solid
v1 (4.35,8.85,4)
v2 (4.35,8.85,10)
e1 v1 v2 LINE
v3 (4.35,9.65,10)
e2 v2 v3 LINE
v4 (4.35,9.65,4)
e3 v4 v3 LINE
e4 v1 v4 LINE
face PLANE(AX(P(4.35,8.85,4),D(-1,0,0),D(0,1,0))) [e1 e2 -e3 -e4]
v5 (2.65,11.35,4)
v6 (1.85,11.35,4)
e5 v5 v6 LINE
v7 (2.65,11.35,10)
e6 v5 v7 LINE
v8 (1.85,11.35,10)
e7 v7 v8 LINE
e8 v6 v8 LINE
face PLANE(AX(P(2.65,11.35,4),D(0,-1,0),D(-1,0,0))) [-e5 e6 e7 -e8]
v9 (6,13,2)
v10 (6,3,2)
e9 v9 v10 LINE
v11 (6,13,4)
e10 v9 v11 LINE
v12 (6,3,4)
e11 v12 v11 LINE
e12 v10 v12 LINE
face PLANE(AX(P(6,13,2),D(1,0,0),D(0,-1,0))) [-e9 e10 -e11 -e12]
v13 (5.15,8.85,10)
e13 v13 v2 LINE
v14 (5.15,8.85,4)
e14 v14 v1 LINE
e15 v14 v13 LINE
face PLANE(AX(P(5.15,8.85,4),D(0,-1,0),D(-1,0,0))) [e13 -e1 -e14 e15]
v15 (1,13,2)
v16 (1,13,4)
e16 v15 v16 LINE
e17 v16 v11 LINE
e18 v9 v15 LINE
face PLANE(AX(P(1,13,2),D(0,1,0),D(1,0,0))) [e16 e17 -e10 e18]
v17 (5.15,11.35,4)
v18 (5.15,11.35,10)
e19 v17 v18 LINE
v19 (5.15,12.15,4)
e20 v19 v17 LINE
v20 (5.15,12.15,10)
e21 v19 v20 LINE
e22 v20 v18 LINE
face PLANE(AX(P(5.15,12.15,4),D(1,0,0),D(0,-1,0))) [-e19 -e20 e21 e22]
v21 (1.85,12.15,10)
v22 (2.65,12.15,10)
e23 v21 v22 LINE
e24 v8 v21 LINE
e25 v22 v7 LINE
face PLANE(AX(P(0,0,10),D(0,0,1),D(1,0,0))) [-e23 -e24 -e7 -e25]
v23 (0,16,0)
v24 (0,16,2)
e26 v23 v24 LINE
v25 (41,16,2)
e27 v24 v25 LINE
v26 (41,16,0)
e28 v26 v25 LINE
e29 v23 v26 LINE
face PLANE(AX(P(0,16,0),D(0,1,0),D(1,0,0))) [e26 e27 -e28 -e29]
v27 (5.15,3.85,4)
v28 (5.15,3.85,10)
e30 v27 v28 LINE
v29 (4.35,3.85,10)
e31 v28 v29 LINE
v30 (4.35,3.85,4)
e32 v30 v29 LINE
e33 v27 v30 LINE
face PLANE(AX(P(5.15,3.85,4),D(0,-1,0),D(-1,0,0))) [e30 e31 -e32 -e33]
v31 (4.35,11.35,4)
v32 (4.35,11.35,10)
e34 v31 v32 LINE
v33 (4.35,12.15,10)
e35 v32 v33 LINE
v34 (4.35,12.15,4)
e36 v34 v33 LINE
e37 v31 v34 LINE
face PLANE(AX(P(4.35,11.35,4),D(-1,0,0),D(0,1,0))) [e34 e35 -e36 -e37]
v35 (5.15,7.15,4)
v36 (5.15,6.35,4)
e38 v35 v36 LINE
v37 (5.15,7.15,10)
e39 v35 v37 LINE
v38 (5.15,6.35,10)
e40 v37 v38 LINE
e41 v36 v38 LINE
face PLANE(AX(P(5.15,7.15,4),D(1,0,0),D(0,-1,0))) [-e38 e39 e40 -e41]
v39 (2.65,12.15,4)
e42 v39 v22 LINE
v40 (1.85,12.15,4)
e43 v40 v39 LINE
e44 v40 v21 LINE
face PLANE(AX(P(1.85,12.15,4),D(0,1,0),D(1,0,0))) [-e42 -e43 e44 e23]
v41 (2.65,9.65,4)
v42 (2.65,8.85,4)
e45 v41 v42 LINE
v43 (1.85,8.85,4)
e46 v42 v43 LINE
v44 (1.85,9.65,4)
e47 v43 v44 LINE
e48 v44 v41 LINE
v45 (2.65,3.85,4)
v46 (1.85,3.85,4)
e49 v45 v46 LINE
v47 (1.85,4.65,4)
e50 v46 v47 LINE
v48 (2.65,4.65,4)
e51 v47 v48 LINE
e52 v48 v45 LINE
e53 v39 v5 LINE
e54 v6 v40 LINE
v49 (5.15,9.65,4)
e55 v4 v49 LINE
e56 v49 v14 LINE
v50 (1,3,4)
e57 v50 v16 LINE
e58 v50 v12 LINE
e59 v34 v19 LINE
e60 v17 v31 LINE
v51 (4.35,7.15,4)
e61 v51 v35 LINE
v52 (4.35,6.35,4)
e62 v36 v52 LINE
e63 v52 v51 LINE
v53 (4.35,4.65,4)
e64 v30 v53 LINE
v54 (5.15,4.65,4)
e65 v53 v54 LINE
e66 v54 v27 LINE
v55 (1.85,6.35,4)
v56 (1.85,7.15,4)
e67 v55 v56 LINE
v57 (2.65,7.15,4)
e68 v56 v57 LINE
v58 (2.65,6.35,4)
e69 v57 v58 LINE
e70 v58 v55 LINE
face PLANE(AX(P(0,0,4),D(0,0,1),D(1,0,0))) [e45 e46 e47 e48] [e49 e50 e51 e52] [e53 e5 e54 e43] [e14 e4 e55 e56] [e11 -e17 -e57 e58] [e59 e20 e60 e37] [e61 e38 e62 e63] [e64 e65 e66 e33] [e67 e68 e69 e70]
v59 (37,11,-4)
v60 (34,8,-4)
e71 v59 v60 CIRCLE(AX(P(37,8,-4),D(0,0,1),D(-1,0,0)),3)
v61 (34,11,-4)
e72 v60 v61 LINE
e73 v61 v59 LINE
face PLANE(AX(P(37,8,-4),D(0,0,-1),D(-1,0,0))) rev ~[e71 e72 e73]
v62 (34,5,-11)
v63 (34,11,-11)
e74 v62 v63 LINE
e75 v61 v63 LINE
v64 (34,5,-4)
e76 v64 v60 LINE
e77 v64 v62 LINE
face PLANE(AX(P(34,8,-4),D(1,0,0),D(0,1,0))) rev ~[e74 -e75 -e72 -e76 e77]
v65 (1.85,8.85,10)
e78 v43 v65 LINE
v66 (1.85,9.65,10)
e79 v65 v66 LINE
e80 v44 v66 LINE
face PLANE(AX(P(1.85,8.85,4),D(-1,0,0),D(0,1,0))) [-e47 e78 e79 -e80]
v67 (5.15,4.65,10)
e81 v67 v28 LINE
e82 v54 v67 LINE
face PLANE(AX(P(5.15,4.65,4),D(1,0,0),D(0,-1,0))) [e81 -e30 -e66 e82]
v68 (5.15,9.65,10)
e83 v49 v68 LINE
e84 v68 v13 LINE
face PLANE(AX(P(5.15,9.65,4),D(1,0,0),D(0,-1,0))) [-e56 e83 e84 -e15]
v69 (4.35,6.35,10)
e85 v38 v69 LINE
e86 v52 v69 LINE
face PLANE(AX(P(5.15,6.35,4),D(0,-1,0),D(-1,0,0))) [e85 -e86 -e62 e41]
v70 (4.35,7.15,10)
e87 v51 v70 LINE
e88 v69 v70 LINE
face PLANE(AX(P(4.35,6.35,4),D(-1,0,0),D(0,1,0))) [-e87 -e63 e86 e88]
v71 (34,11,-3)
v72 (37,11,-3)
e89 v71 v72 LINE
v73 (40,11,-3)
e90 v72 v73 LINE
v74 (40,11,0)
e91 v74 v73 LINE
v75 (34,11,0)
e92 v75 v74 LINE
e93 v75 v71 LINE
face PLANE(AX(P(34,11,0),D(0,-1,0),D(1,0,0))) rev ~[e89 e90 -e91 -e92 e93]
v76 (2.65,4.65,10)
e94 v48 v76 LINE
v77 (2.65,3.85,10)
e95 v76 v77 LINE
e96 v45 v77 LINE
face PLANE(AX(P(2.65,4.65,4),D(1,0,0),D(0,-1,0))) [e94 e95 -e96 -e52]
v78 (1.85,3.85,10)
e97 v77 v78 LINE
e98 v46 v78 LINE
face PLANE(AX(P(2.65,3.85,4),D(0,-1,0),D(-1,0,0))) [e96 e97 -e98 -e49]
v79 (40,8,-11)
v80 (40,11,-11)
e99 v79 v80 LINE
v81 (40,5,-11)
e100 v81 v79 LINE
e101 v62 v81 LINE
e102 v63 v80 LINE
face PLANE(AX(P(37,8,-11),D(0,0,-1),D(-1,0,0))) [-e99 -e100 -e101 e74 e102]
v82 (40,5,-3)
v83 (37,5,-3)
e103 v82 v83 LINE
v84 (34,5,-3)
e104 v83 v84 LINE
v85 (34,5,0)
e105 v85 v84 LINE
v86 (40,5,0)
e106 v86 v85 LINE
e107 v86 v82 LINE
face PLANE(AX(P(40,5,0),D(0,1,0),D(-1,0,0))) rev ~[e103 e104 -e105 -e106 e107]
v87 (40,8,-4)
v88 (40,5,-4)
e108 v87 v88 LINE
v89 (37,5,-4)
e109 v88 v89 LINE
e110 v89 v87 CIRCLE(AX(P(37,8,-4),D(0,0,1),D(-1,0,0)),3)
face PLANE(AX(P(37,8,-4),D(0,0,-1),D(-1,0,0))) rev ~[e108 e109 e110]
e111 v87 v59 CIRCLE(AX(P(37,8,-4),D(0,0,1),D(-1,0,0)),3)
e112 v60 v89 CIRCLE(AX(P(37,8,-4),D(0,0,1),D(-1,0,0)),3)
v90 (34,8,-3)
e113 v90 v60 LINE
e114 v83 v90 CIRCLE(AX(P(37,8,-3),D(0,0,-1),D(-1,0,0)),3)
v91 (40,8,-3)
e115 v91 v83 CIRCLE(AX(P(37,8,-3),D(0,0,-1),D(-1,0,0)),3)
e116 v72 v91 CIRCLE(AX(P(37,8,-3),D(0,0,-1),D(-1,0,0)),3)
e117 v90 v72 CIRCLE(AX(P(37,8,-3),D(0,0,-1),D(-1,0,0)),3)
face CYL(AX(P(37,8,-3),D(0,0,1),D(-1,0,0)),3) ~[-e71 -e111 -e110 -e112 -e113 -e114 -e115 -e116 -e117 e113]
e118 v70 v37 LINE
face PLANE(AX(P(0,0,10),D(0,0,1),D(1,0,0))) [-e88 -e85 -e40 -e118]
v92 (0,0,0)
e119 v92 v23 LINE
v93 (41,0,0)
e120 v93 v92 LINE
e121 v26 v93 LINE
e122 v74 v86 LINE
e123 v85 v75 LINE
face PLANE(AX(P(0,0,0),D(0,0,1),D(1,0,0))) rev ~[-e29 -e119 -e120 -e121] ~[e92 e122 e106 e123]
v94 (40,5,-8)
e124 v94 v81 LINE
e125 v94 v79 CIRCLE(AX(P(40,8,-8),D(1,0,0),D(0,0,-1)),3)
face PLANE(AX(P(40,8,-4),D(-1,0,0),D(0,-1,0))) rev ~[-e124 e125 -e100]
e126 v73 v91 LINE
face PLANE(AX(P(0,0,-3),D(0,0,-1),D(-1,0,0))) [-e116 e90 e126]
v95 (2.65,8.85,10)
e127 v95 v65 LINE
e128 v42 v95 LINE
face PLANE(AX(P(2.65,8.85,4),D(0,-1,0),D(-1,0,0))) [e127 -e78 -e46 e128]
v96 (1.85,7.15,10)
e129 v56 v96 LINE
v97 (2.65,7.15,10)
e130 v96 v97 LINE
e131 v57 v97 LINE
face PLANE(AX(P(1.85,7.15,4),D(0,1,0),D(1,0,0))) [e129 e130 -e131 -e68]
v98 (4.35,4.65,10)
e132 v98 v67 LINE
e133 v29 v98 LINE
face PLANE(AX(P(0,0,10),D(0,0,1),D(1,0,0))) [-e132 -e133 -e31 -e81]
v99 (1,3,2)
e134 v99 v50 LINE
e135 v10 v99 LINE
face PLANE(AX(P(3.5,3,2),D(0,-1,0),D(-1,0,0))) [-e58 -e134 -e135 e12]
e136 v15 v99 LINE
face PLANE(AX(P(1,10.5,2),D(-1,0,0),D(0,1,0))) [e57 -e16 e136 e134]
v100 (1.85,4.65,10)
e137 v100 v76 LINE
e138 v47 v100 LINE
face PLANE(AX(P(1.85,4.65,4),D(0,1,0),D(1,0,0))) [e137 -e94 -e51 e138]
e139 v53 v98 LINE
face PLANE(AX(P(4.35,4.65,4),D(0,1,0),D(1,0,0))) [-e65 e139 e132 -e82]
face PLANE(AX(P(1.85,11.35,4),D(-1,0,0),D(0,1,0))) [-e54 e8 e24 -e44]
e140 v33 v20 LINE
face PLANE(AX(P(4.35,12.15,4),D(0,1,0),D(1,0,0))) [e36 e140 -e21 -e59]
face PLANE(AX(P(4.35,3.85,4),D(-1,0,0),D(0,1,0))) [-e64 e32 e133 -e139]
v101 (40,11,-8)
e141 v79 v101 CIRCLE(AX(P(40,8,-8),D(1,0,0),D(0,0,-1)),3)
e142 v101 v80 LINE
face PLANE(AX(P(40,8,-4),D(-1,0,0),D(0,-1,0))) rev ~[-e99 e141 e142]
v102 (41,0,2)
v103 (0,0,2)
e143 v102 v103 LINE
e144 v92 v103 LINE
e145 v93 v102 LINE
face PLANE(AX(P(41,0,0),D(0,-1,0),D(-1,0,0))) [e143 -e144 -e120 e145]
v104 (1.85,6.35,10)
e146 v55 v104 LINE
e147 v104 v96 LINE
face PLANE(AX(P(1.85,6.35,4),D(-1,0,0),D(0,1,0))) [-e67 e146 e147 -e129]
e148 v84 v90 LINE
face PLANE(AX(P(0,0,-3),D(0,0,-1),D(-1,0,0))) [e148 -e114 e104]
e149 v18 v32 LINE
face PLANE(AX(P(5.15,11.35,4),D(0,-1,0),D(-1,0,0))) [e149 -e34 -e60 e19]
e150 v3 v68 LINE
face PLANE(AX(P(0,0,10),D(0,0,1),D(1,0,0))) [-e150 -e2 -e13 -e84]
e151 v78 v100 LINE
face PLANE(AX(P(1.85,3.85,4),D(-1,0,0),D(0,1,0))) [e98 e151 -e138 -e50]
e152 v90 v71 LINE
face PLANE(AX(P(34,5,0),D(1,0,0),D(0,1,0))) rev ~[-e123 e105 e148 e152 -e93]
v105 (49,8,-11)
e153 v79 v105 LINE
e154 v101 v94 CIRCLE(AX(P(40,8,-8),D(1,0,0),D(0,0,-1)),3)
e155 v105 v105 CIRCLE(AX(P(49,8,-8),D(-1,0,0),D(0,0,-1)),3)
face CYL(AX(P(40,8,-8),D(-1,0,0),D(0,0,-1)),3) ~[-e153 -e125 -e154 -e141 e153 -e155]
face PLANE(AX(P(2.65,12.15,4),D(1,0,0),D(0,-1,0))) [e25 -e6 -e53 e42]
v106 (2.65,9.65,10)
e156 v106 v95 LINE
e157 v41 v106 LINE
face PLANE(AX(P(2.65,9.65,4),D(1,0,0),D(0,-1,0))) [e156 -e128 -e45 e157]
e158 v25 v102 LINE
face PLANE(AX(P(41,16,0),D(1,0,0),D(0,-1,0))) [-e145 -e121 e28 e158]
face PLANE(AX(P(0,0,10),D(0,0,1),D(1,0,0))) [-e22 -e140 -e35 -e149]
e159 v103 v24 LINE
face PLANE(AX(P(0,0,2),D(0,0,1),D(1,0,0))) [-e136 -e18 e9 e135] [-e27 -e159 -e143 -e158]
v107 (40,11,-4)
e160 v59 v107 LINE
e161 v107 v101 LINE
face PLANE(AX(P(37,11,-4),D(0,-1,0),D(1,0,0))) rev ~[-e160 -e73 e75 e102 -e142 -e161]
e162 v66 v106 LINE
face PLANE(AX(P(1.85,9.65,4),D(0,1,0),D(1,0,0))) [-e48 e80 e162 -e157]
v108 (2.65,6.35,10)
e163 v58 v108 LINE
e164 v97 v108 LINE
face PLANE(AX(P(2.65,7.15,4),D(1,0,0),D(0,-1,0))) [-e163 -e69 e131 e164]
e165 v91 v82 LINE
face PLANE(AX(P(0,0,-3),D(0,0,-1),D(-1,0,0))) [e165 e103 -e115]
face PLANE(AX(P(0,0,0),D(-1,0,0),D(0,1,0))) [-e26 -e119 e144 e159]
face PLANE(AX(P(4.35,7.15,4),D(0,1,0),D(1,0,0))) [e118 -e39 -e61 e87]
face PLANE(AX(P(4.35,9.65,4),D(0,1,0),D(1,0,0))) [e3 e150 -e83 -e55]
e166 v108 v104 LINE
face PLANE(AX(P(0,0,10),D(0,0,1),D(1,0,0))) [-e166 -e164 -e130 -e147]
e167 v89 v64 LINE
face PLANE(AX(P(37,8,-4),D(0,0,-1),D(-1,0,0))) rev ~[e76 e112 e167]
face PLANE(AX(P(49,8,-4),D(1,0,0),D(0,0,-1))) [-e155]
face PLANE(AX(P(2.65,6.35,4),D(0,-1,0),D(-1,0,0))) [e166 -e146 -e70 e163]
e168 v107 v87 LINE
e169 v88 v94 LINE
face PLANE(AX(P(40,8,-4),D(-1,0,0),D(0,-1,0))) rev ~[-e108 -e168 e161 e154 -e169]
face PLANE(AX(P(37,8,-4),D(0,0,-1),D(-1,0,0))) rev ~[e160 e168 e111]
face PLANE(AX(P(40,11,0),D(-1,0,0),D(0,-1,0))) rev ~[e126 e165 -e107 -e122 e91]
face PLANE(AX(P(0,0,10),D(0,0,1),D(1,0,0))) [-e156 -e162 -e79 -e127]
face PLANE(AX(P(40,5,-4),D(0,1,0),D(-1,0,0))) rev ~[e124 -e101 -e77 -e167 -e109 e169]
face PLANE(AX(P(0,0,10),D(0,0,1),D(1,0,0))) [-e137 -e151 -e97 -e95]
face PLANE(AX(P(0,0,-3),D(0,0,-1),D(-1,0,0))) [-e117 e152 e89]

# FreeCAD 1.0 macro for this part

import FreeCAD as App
import Part
import Sketcher
from FreeCAD import Vector
Q = App.Units.Quantity


def add_polygon(sketch, points):
    """Adds a closed chain of lines whose ends are joined by coincident constraints."""
    first, n = sketch.GeometryCount, len(points)
    for a, b in zip(points, points[1:] + points[:1]):
        sketch.addGeometry(Part.LineSegment(App.Vector(*a, 0), App.Vector(*b, 0)), False)
    for i in range(n):
        sketch.addConstraint(Sketcher.Constraint("Coincident", first + i, 2, first + (i + 1) % n, 1))

doc = App.newDocument("Part")
body = doc.addObject("PartDesign::Body", "Body")

# Sketch on XY plane
sketch1 = body.newObject("Sketcher::SketchObject", "Sketch")
sketch1.AttachmentSupport = (doc.getObject("XY_Plane"), [""])
sketch1.MapMode = "FlatFace"
add_polygon(sketch1, [(41, 16), (0, 16), (0, 0), (41, 0)])  # lines 0-3
sketch1.addConstraint(Sketcher.Constraint("Horizontal", 0))
sketch1.addConstraint(Sketcher.Constraint("Vertical", 1))
sketch1.addConstraint(Sketcher.Constraint("Horizontal", 2))
sketch1.addConstraint(Sketcher.Constraint("Vertical", 3))
sketch1.addConstraint(Sketcher.Constraint("Coincident", 1, 2, -1, 1))
sketch1.addConstraint(Sketcher.Constraint("DistanceX", 0, 2, 0, 1, Q("41 mm")))
sketch1.addConstraint(Sketcher.Constraint("DistanceY", 1, 2, 1, 1, Q("16 mm")))
pad1 = body.newObject("PartDesign::Pad", "Pad")
pad1.Profile = sketch1
pad1.Length = 2

# Sketch on XY plane
sketch2 = body.newObject("Sketcher::SketchObject", "Sketch001")
sketch2.AttachmentSupport = (doc.getObject("XY_Plane"), [""])
sketch2.MapMode = "FlatFace"
sketch2.AttachmentOffset = App.Placement(Vector(0, 0, 2), App.Rotation())
add_polygon(sketch2, [(1, 13), (1, 3), (6, 3), (6, 13)])  # lines 0-3
sketch2.addConstraint(Sketcher.Constraint("Vertical", 0))
sketch2.addConstraint(Sketcher.Constraint("Horizontal", 1))
sketch2.addConstraint(Sketcher.Constraint("Vertical", 2))
sketch2.addConstraint(Sketcher.Constraint("Horizontal", 3))
sketch2.addConstraint(Sketcher.Constraint("DistanceY", 0, 2, 0, 1, Q("10 mm")))
sketch2.addConstraint(Sketcher.Constraint("DistanceX", -1, 1, 0, 2, Q("1 mm")))
sketch2.addConstraint(Sketcher.Constraint("DistanceY", -1, 1, 0, 2, Q("3 mm")))
sketch2.addConstraint(Sketcher.Constraint("DistanceX", 1, 1, 1, 2, Q("5 mm")))
pad2 = body.newObject("PartDesign::Pad", "Pad001")
pad2.Profile = sketch2
pad2.Length = 2

# Sketch on XY plane
sketch3 = body.newObject("Sketcher::SketchObject", "Sketch002")
sketch3.AttachmentSupport = (doc.getObject("XY_Plane"), [""])
sketch3.MapMode = "FlatFace"
sketch3.AttachmentOffset = App.Placement(Vector(0, 0, 4), App.Rotation())
add_polygon(sketch3, [(2.6, 12.2), (1.9, 12.2), (1.9, 11.3), (2.6, 11.3)])  # lines 0-3
add_polygon(sketch3, [(2.6, 8.8), (2.6, 9.7), (1.9, 9.7), (1.9, 8.8)])  # lines 4-7
add_polygon(sketch3, [(2.6, 6.3), (2.6, 7.2), (1.9, 7.2), (1.9, 6.3)])  # lines 8-11
add_polygon(sketch3, [(2.6, 3.9), (2.6, 4.7), (1.9, 4.7), (1.9, 3.9)])  # lines 12-15
add_polygon(sketch3, [(5.2, 11.3), (5.2, 12.2), (4.3, 12.2), (4.3, 11.3)])  # lines 16-19
add_polygon(sketch3, [(5.2, 8.8), (5.2, 9.7), (4.3, 9.7), (4.3, 8.8)])  # lines 20-23
add_polygon(sketch3, [(5.2, 6.3), (5.2, 7.2), (4.3, 7.2), (4.3, 6.3)])  # lines 24-27
add_polygon(sketch3, [(5.2, 3.9), (5.2, 4.7), (4.3, 4.7), (4.3, 3.9)])  # lines 28-31
sketch3.addConstraint(Sketcher.Constraint("Horizontal", 0))
sketch3.addConstraint(Sketcher.Constraint("Vertical", 1))
sketch3.addConstraint(Sketcher.Constraint("Horizontal", 2))
sketch3.addConstraint(Sketcher.Constraint("Vertical", 3))
sketch3.addConstraint(Sketcher.Constraint("Vertical", 4))
sketch3.addConstraint(Sketcher.Constraint("Horizontal", 5))
sketch3.addConstraint(Sketcher.Constraint("Vertical", 6))
sketch3.addConstraint(Sketcher.Constraint("Horizontal", 7))
sketch3.addConstraint(Sketcher.Constraint("Vertical", 8))
sketch3.addConstraint(Sketcher.Constraint("Horizontal", 9))
sketch3.addConstraint(Sketcher.Constraint("Vertical", 10))
sketch3.addConstraint(Sketcher.Constraint("Horizontal", 11))
sketch3.addConstraint(Sketcher.Constraint("Vertical", 12))
sketch3.addConstraint(Sketcher.Constraint("Horizontal", 13))
sketch3.addConstraint(Sketcher.Constraint("Vertical", 14))
sketch3.addConstraint(Sketcher.Constraint("Horizontal", 15))
sketch3.addConstraint(Sketcher.Constraint("Vertical", 16))
sketch3.addConstraint(Sketcher.Constraint("Horizontal", 17))
sketch3.addConstraint(Sketcher.Constraint("Vertical", 18))
sketch3.addConstraint(Sketcher.Constraint("Horizontal", 19))
sketch3.addConstraint(Sketcher.Constraint("Vertical", 20))
sketch3.addConstraint(Sketcher.Constraint("Horizontal", 21))
sketch3.addConstraint(Sketcher.Constraint("Vertical", 22))
sketch3.addConstraint(Sketcher.Constraint("Horizontal", 23))
sketch3.addConstraint(Sketcher.Constraint("Vertical", 24))
sketch3.addConstraint(Sketcher.Constraint("Horizontal", 25))
sketch3.addConstraint(Sketcher.Constraint("Vertical", 26))
sketch3.addConstraint(Sketcher.Constraint("Horizontal", 27))
sketch3.addConstraint(Sketcher.Constraint("Vertical", 28))
sketch3.addConstraint(Sketcher.Constraint("Horizontal", 29))
sketch3.addConstraint(Sketcher.Constraint("Vertical", 30))
sketch3.addConstraint(Sketcher.Constraint("Horizontal", 31))
sketch3.addConstraint(Sketcher.Constraint("Horizontal", 3, 2, 16, 2))
sketch3.addConstraint(Sketcher.Constraint("Horizontal", 2, 2, 18, 2))
sketch3.addConstraint(Sketcher.Constraint("Horizontal", 5, 2, 20, 2))
sketch3.addConstraint(Sketcher.Constraint("Horizontal", 7, 2, 22, 2))
sketch3.addConstraint(Sketcher.Constraint("Horizontal", 9, 2, 24, 2))
sketch3.addConstraint(Sketcher.Constraint("Horizontal", 11, 2, 26, 2))
sketch3.addConstraint(Sketcher.Constraint("Horizontal", 13, 2, 28, 2))
sketch3.addConstraint(Sketcher.Constraint("Horizontal", 15, 2, 30, 2))
sketch3.addConstraint(Sketcher.Constraint("Vertical", 3, 2, 4, 2))
sketch3.addConstraint(Sketcher.Constraint("Vertical", 1, 2, 5, 2))
sketch3.addConstraint(Sketcher.Constraint("Vertical", 7, 2, 8, 2))
sketch3.addConstraint(Sketcher.Constraint("Vertical", 6, 2, 9, 2))
sketch3.addConstraint(Sketcher.Constraint("Vertical", 11, 2, 12, 2))
sketch3.addConstraint(Sketcher.Constraint("Vertical", 10, 2, 13, 2))
sketch3.addConstraint(Sketcher.Constraint("Vertical", 19, 2, 20, 2))
sketch3.addConstraint(Sketcher.Constraint("Vertical", 18, 2, 21, 2))
sketch3.addConstraint(Sketcher.Constraint("Vertical", 23, 2, 24, 2))
sketch3.addConstraint(Sketcher.Constraint("Vertical", 22, 2, 25, 2))
sketch3.addConstraint(Sketcher.Constraint("Vertical", 27, 2, 28, 2))
sketch3.addConstraint(Sketcher.Constraint("Vertical", 26, 2, 29, 2))
sketch3.addConstraint(Sketcher.Constraint("Equal", 15, 17))
sketch3.addConstraint(Sketcher.Constraint("Equal", 31, 1))
sketch3.addConstraint(Sketcher.Constraint("Equal", 3, 4))
sketch3.addConstraint(Sketcher.Constraint("Equal", 6, 8))
sketch3.addConstraint(Sketcher.Constraint("Equal", 10, 12))
sketch3.addConstraint(Sketcher.Constraint("DistanceX", 0, 2, 0, 1, Q("0.8 mm")))
sketch3.addConstraint(Sketcher.Constraint("DistanceY", 4, 2, 3, 2, Q("2.5 mm")))
sketch3.addConstraint(Sketcher.Constraint("DistanceY", 8, 2, 4, 2, Q("2.5 mm")))
sketch3.addConstraint(Sketcher.Constraint("DistanceY", 12, 2, 8, 2, Q("2.5 mm")))
sketch3.addConstraint(Sketcher.Constraint("DistanceX", 3, 2, 16, 2, Q("2.5 mm")))
sketch3.addConstraint(Sketcher.Constraint("DistanceX", -1, 1, 0, 2, Q("1.85 mm")))
sketch3.addConstraint(Sketcher.Constraint("DistanceY", -1, 1, 0, 2, Q("12.15 mm")))
pad3 = body.newObject("PartDesign::Pad", "Pad002")
pad3.Profile = sketch3
pad3.Length = 6

# Sketch on XY plane
sketch4 = body.newObject("Sketcher::SketchObject", "Sketch003")
sketch4.AttachmentSupport = (doc.getObject("XY_Plane"), [""])
sketch4.MapMode = "FlatFace"
add_polygon(sketch4, [(40, 11), (40, 5), (34, 5), (34, 11)])  # lines 0-3
sketch4.addConstraint(Sketcher.Constraint("Vertical", 0))
sketch4.addConstraint(Sketcher.Constraint("Horizontal", 1))
sketch4.addConstraint(Sketcher.Constraint("Vertical", 2))
sketch4.addConstraint(Sketcher.Constraint("Horizontal", 3))
sketch4.addConstraint(Sketcher.Constraint("Equal", 3, 0))
sketch4.addConstraint(Sketcher.Constraint("DistanceX", 1, 2, 1, 1, Q("6 mm")))
sketch4.addConstraint(Sketcher.Constraint("DistanceY", -1, 1, 0, 2, Q("5 mm")))
sketch4.addConstraint(Sketcher.Constraint("DistanceX", -1, 1, 0, 2, Q("40 mm")))
pad4 = body.newObject("PartDesign::Pad", "Pad003")
pad4.Profile = sketch4
pad4.Length = 3
pad4.Reversed = True

# Sketch on XY plane
sketch5 = body.newObject("Sketcher::SketchObject", "Sketch004")
sketch5.AttachmentSupport = (doc.getObject("XY_Plane"), [""])
sketch5.MapMode = "FlatFace"
sketch5.AttachmentOffset = App.Placement(Vector(0, 0, -3), App.Rotation())
sketch5.addGeometry(Part.Circle(Vector(37, 8, 0), Vector(0, 0, 1), 3), False)
sketch5.addConstraint(Sketcher.Constraint("Diameter", 0, Q("6 mm")))
sketch5.addConstraint(Sketcher.Constraint("DistanceX", -1, 1, 0, 3, Q("37 mm")))
sketch5.addConstraint(Sketcher.Constraint("DistanceY", -1, 1, 0, 3, Q("8 mm")))
pad5 = body.newObject("PartDesign::Pad", "Pad004")
pad5.Profile = sketch5
pad5.Length = 1
pad5.Reversed = True

# Sketch on XY plane
sketch6 = body.newObject("Sketcher::SketchObject", "Sketch005")
sketch6.AttachmentSupport = (doc.getObject("XY_Plane"), [""])
sketch6.MapMode = "FlatFace"
sketch6.AttachmentOffset = App.Placement(Vector(0, 0, -4), App.Rotation())
add_polygon(sketch6, [(40, 11), (40, 5), (34, 5), (34, 11)])  # lines 0-3
sketch6.addConstraint(Sketcher.Constraint("Vertical", 0))
sketch6.addConstraint(Sketcher.Constraint("Horizontal", 1))
sketch6.addConstraint(Sketcher.Constraint("Vertical", 2))
sketch6.addConstraint(Sketcher.Constraint("Horizontal", 3))
sketch6.addConstraint(Sketcher.Constraint("Equal", 3, 0))
sketch6.addConstraint(Sketcher.Constraint("DistanceX", 1, 2, 1, 1, Q("6 mm")))
sketch6.addConstraint(Sketcher.Constraint("DistanceX", -1, 1, 0, 2, Q("40 mm")))
sketch6.addConstraint(Sketcher.Constraint("DistanceY", -1, 1, 0, 2, Q("5 mm")))
pad6 = body.newObject("PartDesign::Pad", "Pad005")
pad6.Profile = sketch6
pad6.Length = 7
pad6.Reversed = True

# Sketch on YZ plane
sketch7 = body.newObject("Sketcher::SketchObject", "Sketch006")
sketch7.AttachmentSupport = (doc.getObject("YZ_Plane"), [""])
sketch7.MapMode = "FlatFace"
sketch7.AttachmentOffset = App.Placement(Vector(0, 0, 40), App.Rotation())
sketch7.addGeometry(Part.Circle(Vector(8, -8, 0), Vector(0, 0, 1), 3), False)
sketch7.addConstraint(Sketcher.Constraint("Diameter", 0, Q("6 mm")))
sketch7.addConstraint(Sketcher.Constraint("DistanceX", -1, 1, 0, 3, Q("8 mm")))
sketch7.addConstraint(Sketcher.Constraint("DistanceY", 0, 3, -1, 1, Q("8 mm")))
pad7 = body.newObject("PartDesign::Pad", "Pad006")
pad7.Profile = sketch7
pad7.Length = 9

doc.recompute()
